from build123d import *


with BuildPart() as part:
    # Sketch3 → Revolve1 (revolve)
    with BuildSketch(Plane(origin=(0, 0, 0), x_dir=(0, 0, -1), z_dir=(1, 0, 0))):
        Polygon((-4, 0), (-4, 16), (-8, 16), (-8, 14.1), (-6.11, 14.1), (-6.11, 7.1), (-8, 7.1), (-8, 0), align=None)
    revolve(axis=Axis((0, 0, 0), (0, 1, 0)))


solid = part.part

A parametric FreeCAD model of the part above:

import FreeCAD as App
import Part
import Sketcher

V = App.Vector

doc = App.newDocument("Part")
body = doc.addObject("PartDesign::Body", "Body")

# Sketch on YZ plane
sketch1 = doc.addObject("Sketcher::SketchObject", "Sketch")
body.addObject(sketch1)
sketch1.AttachmentSupport = (doc.YZ_Plane, [""])
sketch1.MapMode = "FlatFace"
sketch1.addGeometry([
    Part.LineSegment(V(0, 4, 0), V(16, 4, 0)),  # 0
    Part.LineSegment(V(16, 4, 0), V(16, 8, 0)),  # 1
    Part.LineSegment(V(16, 8, 0), V(14.1, 8, 0)),  # 2
    Part.LineSegment(V(14.1, 8, 0), V(14.1, 6.1, 0)),  # 3
    Part.LineSegment(V(14.1, 6.1, 0), V(7.1, 6.1, 0)),  # 4
    Part.LineSegment(V(7.1, 6.1, 0), V(7.1, 8, 0)),  # 5
    Part.LineSegment(V(7.1, 8, 0), V(0, 8, 0)),  # 6
    Part.LineSegment(V(0, 8, 0), V(0, 4, 0)),  # 7
], False)
sketch1.addConstraint([
    Sketcher.Constraint("Coincident", 0, 2, 1, 1),
    Sketcher.Constraint("Coincident", 1, 2, 2, 1),
    Sketcher.Constraint("Coincident", 2, 2, 3, 1),
    Sketcher.Constraint("Coincident", 3, 2, 4, 1),
    Sketcher.Constraint("Coincident", 4, 2, 5, 1),
    Sketcher.Constraint("Coincident", 5, 2, 6, 1),
    Sketcher.Constraint("Coincident", 6, 2, 7, 1),
    Sketcher.Constraint("Coincident", 7, 2, 0, 1),
    Sketcher.Constraint("Horizontal", 0),
    Sketcher.Constraint("Vertical", 1),
    Sketcher.Constraint("Horizontal", 2),
    Sketcher.Constraint("Vertical", 3),
    Sketcher.Constraint("Horizontal", 4),
    Sketcher.Constraint("Vertical", 5),
    Sketcher.Constraint("Horizontal", 6),
    Sketcher.Constraint("Vertical", 7),
    Sketcher.Constraint("PointOnObject", 6, 2, -2),
    Sketcher.Constraint("Horizontal", 2, 2, 5, 2),
    Sketcher.Constraint("DistanceX", 0, 1, 0, 2, 16.0),
    Sketcher.Constraint("DistanceX", 4, 2, 4, 1, 7.0),
    Sketcher.Constraint("DistanceY", 1, 1, 1, 2, 4.0),
    Sketcher.Constraint("DistanceX", 2, 2, 2, 1, 1.9),
    Sketcher.Constraint("DistanceY", -1, 1, 0, 2, 4.0),
    Sketcher.Constraint("DistanceY", 3, 2, 3, 1, 1.89),
])
revolution = doc.addObject("PartDesign::Revolution", "Revolution")
body.addObject(revolution)
revolution.Profile = sketch1
revolution.ReferenceAxis = (sketch1, ["H_Axis"])
revolution.Angle = 360

doc.recompute()
